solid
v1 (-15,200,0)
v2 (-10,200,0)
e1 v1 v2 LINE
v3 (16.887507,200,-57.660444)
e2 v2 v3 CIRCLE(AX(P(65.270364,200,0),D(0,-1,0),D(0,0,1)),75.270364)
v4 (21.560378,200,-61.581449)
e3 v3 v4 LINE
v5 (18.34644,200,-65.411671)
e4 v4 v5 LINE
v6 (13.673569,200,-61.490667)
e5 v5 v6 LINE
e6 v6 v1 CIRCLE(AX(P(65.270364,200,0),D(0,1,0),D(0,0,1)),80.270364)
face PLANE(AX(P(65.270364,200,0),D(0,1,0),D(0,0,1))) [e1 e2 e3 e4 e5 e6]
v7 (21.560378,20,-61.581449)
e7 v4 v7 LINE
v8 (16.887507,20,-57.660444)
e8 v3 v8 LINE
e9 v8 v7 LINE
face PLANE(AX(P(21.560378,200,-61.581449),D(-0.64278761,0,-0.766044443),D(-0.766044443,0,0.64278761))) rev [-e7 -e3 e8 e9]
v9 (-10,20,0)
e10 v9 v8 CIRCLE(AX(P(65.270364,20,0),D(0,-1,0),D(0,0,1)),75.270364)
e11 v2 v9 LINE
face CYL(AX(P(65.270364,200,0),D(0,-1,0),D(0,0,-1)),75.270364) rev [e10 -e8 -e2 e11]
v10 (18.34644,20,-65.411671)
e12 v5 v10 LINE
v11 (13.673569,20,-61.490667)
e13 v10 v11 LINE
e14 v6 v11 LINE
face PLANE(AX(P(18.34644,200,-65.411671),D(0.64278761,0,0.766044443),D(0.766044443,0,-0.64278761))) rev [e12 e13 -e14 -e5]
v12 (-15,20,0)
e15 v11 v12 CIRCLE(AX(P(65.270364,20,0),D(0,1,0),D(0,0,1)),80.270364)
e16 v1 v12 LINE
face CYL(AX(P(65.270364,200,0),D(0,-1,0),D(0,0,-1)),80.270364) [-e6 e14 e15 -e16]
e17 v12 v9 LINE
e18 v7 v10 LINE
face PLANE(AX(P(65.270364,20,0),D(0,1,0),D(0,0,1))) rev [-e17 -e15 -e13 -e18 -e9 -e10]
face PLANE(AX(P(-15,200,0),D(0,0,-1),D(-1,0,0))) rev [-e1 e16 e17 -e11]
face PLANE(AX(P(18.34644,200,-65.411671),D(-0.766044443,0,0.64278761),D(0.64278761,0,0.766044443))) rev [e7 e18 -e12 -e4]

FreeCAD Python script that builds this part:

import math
import FreeCAD as App
import Part
import Sketcher
Q = App.Units.Quantity

doc = App.newDocument("Part")
body = doc.addObject("PartDesign::Body", "Body")

# Sketch on XZ plane
sketch1 = doc.addObject("Sketcher::SketchObject", "Sketch")
body.addObject(sketch1)
sketch1.AttachmentSupport = (doc.XZ_Plane, [""])
sketch1.MapMode = "FlatFace"
sketch1.addGeometry([
    Part.LineSegment(App.Vector(-10, 0, 0), App.Vector(10, 0, 0)),  # 0
    Part.ArcOfCircle(Part.Circle(App.Vector(65.270364, 0, 0), App.Vector(0, 0, 1), 55.270364), math.radians(180), math.radians(230)),  # 1
    Part.LineSegment(App.Vector(29.743259, -42.339556, 0), App.Vector(16.887507, -57.660444, 0)),  # 2
    Part.ArcOfCircle(Part.Circle(App.Vector(65.270364, 0, 0), App.Vector(0, 0, 1), 75.270364), math.radians(180), math.radians(230)),  # 3
    Part.Circle(App.Vector(0.770593, -10, 0), App.Vector(0, 0, 1), 2.6),  # 4
    Part.Circle(App.Vector(16.150266, -42.981815, 0), App.Vector(0, 0, 1), 2.6),  # 5
    Part.Circle(App.Vector(6.115325, -27.584448, 0), App.Vector(0, 0, 1), 2.6),  # 6
], False)
sketch1.addConstraint([
    Sketcher.Constraint("Coincident", 0, 2, 1, 1),
    Sketcher.Constraint("Coincident", 1, 2, 2, 1),
    Sketcher.Constraint("Coincident", 2, 2, 3, 2),
    Sketcher.Constraint("Coincident", 3, 1, 0, 1),
    Sketcher.Constraint("Horizontal", 0),
    Sketcher.Constraint("Coincident", 3, 3, 1, 3),
    Sketcher.Constraint("Equal", 4, 5),
    Sketcher.Constraint("Equal", 5, 6),
    Sketcher.Constraint("Symmetric", 0, 2, 3, 1, -1, 1),
    Sketcher.Constraint("PointOnObject", 1, 3, -1),
    Sketcher.Constraint("Diameter", 4, 5.2),
    Sketcher.Constraint("DistanceX", 0, 1, 0, 2, 20.0),
    Sketcher.Constraint("Angle", 2, Q("-130 deg")),
    Sketcher.Constraint("DistanceY", 4, 3, -1, 1, 10.0),
    Sketcher.Constraint("Radius", 1, 55.270364),
    Sketcher.Constraint("DistanceX", 5, 3, 1, 3, 49.120098),
    Sketcher.Constraint("DistanceX", -1, 1, 1, 2, 29.743259),
    Sketcher.Constraint("DistanceX", 4, 3, 1, 3, 64.499771),
    Sketcher.Constraint("DistanceX", 6, 3, 5, 3, 10.034941),
    Sketcher.Constraint("DistanceY", 5, 3, 1, 2, 0.64226),
    Sketcher.Constraint("DistanceY", 6, 3, -1, 1, 27.584448),
])
pad1 = doc.addObject("PartDesign::Pad", "Pad")
body.addObject(pad1)
pad1.Profile = sketch1
pad1.Length = 20
pad1.Reversed = True

# Sketch on XZ plane
sketch2 = doc.addObject("Sketcher::SketchObject", "Sketch001")
body.addObject(sketch2)
sketch2.AttachmentSupport = (doc.XZ_Plane, [""])
sketch2.MapMode = "FlatFace"
sketch2.AttachmentOffset = App.Placement(App.Vector(0, 0, -20), App.Rotation())
sketch2.addGeometry([
    Part.LineSegment(App.Vector(16.887507, -57.660444, 0), App.Vector(29.743259, -42.339556, 0)),
    Part.LineSegment(App.Vector(29.743259, -42.339556, 0), App.Vector(34.41613, -46.26056, 0)),
    Part.LineSegment(App.Vector(34.41613, -46.26056, 0), App.Vector(21.560378, -61.581449, 0)),
    Part.LineSegment(App.Vector(21.560378, -61.581449, 0), App.Vector(16.887507, -57.660444, 0)),
], False)
sketch2.addConstraint([
    Sketcher.Constraint("Coincident", 0, 2, 1, 1),
    Sketcher.Constraint("Coincident", 1, 2, 2, 1),
    Sketcher.Constraint("Coincident", 2, 2, 3, 1),
    Sketcher.Constraint("Coincident", 3, 2, 0, 1),
    Sketcher.Constraint("Perpendicular", 0, 1),
    Sketcher.Constraint("Perpendicular", 1, 2),
    Sketcher.Constraint("Perpendicular", 2, 3),
    Sketcher.Constraint("Angle", 0, Q("50 deg")),
    Sketcher.Constraint("Distance", 0, 20.0),
    Sketcher.Constraint("Distance", 1, 6.1),
    Sketcher.Constraint("DistanceX", -1, 1, 0, 2, 29.743259),
    Sketcher.Constraint("DistanceY", 1, 2, -1, 1, 46.26056),
])
pad2 = doc.addObject("PartDesign::Pad", "Pad001")
body.addObject(pad2)
pad2.Profile = sketch2
pad2.Length = 20

# Sketch on XZ plane
sketch3 = doc.addObject("Sketcher::SketchObject", "Sketch002")
body.addObject(sketch3)
sketch3.AttachmentSupport = (doc.XZ_Plane, [""])
sketch3.MapMode = "FlatFace"
sketch3.AttachmentOffset = App.Placement(App.Vector(0, 0, -20), App.Rotation())
sketch3.addGeometry([
    Part.LineSegment(App.Vector(29.743259, -42.339556, 0), App.Vector(34.41613, -46.26056, 0)),  # 0
    Part.LineSegment(App.Vector(34.41613, -46.26056, 0), App.Vector(21.560378, -61.581449, 0)),  # 1
    Part.LineSegment(App.Vector(21.560378, -61.581449, 0), App.Vector(16.887507, -57.660444, 0)),  # 2
    Part.ArcOfCircle(Part.Circle(App.Vector(65.270364, 0, 0), App.Vector(0, 0, 1), 75.270364), math.radians(180), math.radians(230)),  # 3
    Part.LineSegment(App.Vector(-10, 0, 0), App.Vector(10, 0, 0)),  # 4
    Part.ArcOfCircle(Part.Circle(App.Vector(65.270364, 0, 0), App.Vector(0, 0, 1), 55.270364), math.radians(180), math.radians(230)),  # 5
], False)
sketch3.addConstraint([
    Sketcher.Constraint("Coincident", 0, 2, 1, 1),
    Sketcher.Constraint("Coincident", 1, 2, 2, 1),
    Sketcher.Constraint("Tangent", 2, 2, 3, 2),
    Sketcher.Constraint("Coincident", 3, 1, 4, 1),
    Sketcher.Constraint("Coincident", 4, 2, 5, 1),
    Sketcher.Constraint("Tangent", 5, 2, 0, 1),
    Sketcher.Constraint("Horizontal", 4),
    Sketcher.Constraint("Coincident", 5, 3, 3, 3),
    Sketcher.Constraint("Symmetric", 3, 1, 4, 2, -1, 1),
    Sketcher.Constraint("PointOnObject", 3, 3, -1),
    Sketcher.Constraint("Perpendicular", 0, 1),
    Sketcher.Constraint("Perpendicular", 1, 2),
    Sketcher.Constraint("DistanceX", 4, 1, 4, 2, 20.0),
    Sketcher.Constraint("Angle", 0, Q("-40 deg")),
    Sketcher.Constraint("Distance", 0, 6.1),
    Sketcher.Constraint("Radius", 3, 75.270364),
])
pocket1 = doc.addObject("PartDesign::Pocket", "Pocket")
body.addObject(pocket1)
pocket1.Profile = sketch3
pocket1.Type = "ThroughAll"
pocket1.Reversed = True
body2 = doc.addObject("PartDesign::Body", "Body001")

# Sketch on XZ plane
sketch4 = doc.addObject("Sketcher::SketchObject", "Sketch003")
body2.addObject(sketch4)
sketch4.AttachmentSupport = (doc.getObject("XZ_Plane001"), [""])
sketch4.MapMode = "FlatFace"
sketch4.AttachmentOffset = App.Placement(App.Vector(0, 0, -20), App.Rotation())
sketch4.addGeometry([
    Part.LineSegment(App.Vector(18.34644, -65.411671, 0), App.Vector(13.673569, -61.490667, 0)),  # 0
    Part.ArcOfCircle(Part.Circle(App.Vector(65.270364, 0, 0), App.Vector(0, 0, 1), 80.270364), math.radians(180), math.radians(230)),  # 1
    Part.LineSegment(App.Vector(-15, 0, 0), App.Vector(-10, 0, 0)),  # 2
    Part.ArcOfCircle(Part.Circle(App.Vector(65.270364, 0, 0), App.Vector(0, 0, 1), 75.270364), math.radians(180), math.radians(230)),  # 3
    Part.LineSegment(App.Vector(16.887507, -57.660444, 0), App.Vector(21.560378, -61.581449, 0)),  # 4
    Part.LineSegment(App.Vector(21.560378, -61.581449, 0), App.Vector(18.34644, -65.411671, 0)),  # 5
], False)
sketch4.addConstraint([
    Sketcher.Constraint("Tangent", 0, 2, 1, 2),
    Sketcher.Constraint("Coincident", 1, 1, 2, 1),
    Sketcher.Constraint("Coincident", 2, 2, 3, 1),
    Sketcher.Constraint("Tangent", 3, 2, 4, 1),
    Sketcher.Constraint("Coincident", 4, 2, 5, 1),
    Sketcher.Constraint("Coincident", 5, 2, 0, 1),
    Sketcher.Constraint("Horizontal", 2),
    Sketcher.Constraint("Coincident", 3, 3, 1, 3),
    Sketcher.Constraint("PointOnObject", 1, 3, -1),
    Sketcher.Constraint("PointOnObject", 1, 1, -1),
    Sketcher.Constraint("Parallel", 0, 4),
    Sketcher.Constraint("Perpendicular", 4, 5),
    Sketcher.Constraint("DistanceX", 2, 1, 2, 2, 5.0),
    Sketcher.Constraint("Angle", 0, Q("140 deg")),
    Sketcher.Constraint("DistanceX", 1, 1, -1, 1, 15.0),
    Sketcher.Constraint("Distance", 0, 6.1),
    Sketcher.Constraint("Radius", 1, 80.270364),
])
pad3 = doc.addObject("PartDesign::Pad", "Pad002")
body2.addObject(pad3)
pad3.Profile = sketch4
pad3.Length = 180
pad3.Reversed = True

doc.recompute()
